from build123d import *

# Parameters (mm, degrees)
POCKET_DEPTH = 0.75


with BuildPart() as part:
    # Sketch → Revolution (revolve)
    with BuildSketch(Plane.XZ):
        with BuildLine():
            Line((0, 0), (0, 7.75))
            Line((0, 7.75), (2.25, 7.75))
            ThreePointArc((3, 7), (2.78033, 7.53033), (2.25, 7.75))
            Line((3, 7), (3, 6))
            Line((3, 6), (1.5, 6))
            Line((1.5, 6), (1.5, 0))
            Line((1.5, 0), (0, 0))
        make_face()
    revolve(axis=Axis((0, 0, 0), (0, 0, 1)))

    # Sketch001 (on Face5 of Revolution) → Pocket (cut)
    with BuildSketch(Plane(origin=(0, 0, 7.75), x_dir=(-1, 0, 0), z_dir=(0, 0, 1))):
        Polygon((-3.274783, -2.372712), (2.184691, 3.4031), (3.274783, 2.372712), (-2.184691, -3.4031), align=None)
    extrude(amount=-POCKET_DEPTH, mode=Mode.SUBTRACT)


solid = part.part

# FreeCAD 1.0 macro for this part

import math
import FreeCAD as App
import Part
import Sketcher
Q = App.Units.Quantity


def add_polygon(sketch, points):
    """Adds a closed chain of lines whose ends are joined by coincident constraints."""
    first, n = sketch.GeometryCount, len(points)
    for a, b in zip(points, points[1:] + points[:1]):
        sketch.addGeometry(Part.LineSegment(App.Vector(*a, 0), App.Vector(*b, 0)), False)
    for i in range(n):
        sketch.addConstraint(Sketcher.Constraint("Coincident", first + i, 2, first + (i + 1) % n, 1))

doc = App.newDocument("Part")
params = doc.addObject("Spreadsheet::Sheet", "Params")
for row, (alias, value) in enumerate([
    ("sketch1_height", "6 mm"),
    ("sketch1_height2", "1 mm"),
    ("sketch1_radius", "0.75 mm"),
    ("sketch1_width", "1.5 mm"),
    ("revolution_angle", "360 deg"),
    ("sketch2_length", "1.5 mm"),
    ("pocket1_length", "0.75 mm"),
], start=1):
    params.set(f"A{row}", alias)
    params.set(f"B{row}", "=" + value)
    params.setAlias(f"B{row}", alias)

body = doc.addObject("PartDesign::Body", "Body")

sketch1 = doc.addObject("Sketcher::SketchObject", "Sketch")
body.addObject(sketch1)
sketch1.AttachmentSupport = (doc.XZ_Plane, [""])
sketch1.MapMode = "FlatFace"
sketch1.addGeometry(Part.LineSegment(App.Vector(0, 7.8, 0), App.Vector(0, 0, 0)), False)
sketch1.addGeometry(Part.LineSegment(App.Vector(0, 0, 0), App.Vector(1.5, 0, 0)), False)
sketch1.addGeometry(Part.LineSegment(App.Vector(1.5, 0, 0), App.Vector(1.5, 6, 0)), False)
sketch1.addGeometry(Part.LineSegment(App.Vector(1.5, 6, 0), App.Vector(3, 6, 0)), False)
sketch1.addGeometry(Part.LineSegment(App.Vector(3, 6, 0), App.Vector(3, 7, 0)), False)
sketch1.addGeometry(Part.ArcOfCircle(Part.Circle(App.Vector(2.2, 7, 0), App.Vector(0, 0, 1), 0.8), math.radians(0), math.radians(90)), False)
sketch1.addGeometry(Part.LineSegment(App.Vector(2.2, 7.8, 0), App.Vector(0, 7.8, 0)), False)
sketch1.addConstraint(Sketcher.Constraint("Coincident", 0, 2, 1, 1))
sketch1.addConstraint(Sketcher.Constraint("Coincident", 1, 2, 2, 1))
sketch1.addConstraint(Sketcher.Constraint("Coincident", 2, 2, 3, 1))
sketch1.addConstraint(Sketcher.Constraint("Coincident", 3, 2, 4, 1))
sketch1.addConstraint(Sketcher.Constraint("Tangent", 4, 2, 5, 1))
sketch1.addConstraint(Sketcher.Constraint("Tangent", 5, 2, 6, 1))
sketch1.addConstraint(Sketcher.Constraint("Coincident", 6, 2, 0, 1))
sketch1.addConstraint(Sketcher.Constraint("Vertical", 0))
sketch1.addConstraint(Sketcher.Constraint("Horizontal", 1))
sketch1.addConstraint(Sketcher.Constraint("Vertical", 2))
sketch1.addConstraint(Sketcher.Constraint("Horizontal", 3))
sketch1.addConstraint(Sketcher.Constraint("Vertical", 4))
sketch1.addConstraint(Sketcher.Constraint("Horizontal", 6))
sketch1.addConstraint(Sketcher.Constraint("Coincident", 0, 2, -1, 1))
sketch1.addConstraint(Sketcher.Constraint("Equal", 1, 3))
sketch1.addConstraint(Sketcher.Constraint("DistanceY", 2, 1, 2, 2, Q("6 mm")))
sketch1.addConstraint(Sketcher.Constraint("DistanceY", 4, 1, 4, 2, Q("1 mm")))
sketch1.addConstraint(Sketcher.Constraint("Radius", 5, Q("0.75 mm")))
sketch1.addConstraint(Sketcher.Constraint("DistanceX", 1, 1, 1, 2, Q("1.5 mm")))
sketch1.setExpression("Constraints[15]", "Params.sketch1_height")
sketch1.setExpression("Constraints[16]", "Params.sketch1_height2")
sketch1.setExpression("Constraints[17]", "Params.sketch1_radius")
sketch1.setExpression("Constraints[18]", "Params.sketch1_width")
revolution = doc.addObject("PartDesign::Revolution", "Revolution")
body.addObject(revolution)
revolution.Profile = sketch1
revolution.ReferenceAxis = (sketch1, ["V_Axis"])
revolution.setExpression("Angle", "Params.revolution_angle")

sketch2 = doc.addObject("Sketcher::SketchObject", "Sketch001")
body.addObject(sketch2)
sketch2.AttachmentSupport = (doc.XY_Plane, [""])
sketch2.MapMode = "FlatFace"
sketch2.AttachmentOffset = App.Placement(App.Vector(0, 0, 7.75), App.Rotation())
add_polygon(sketch2, [(-2.2, -3.4), (3.3, 2.4), (2.2, 3.4), (-3.3, -2.4)])
sketch2.addConstraint(Sketcher.Constraint("Symmetric", 0, 2, 2, 2, -1, 1))
sketch2.addConstraint(Sketcher.Constraint("Symmetric", 1, 2, 3, 2, -1, 1))
sketch2.addConstraint(Sketcher.Constraint("Perpendicular", 0, 1))
sketch2.addConstraint(Sketcher.Constraint("Distance", 1, Q("1.5 mm")))
sketch2.addConstraint(Sketcher.Constraint("DistanceY", -1, 1, 1, 2, Q("3.4031 mm")))
sketch2.addConstraint(Sketcher.Constraint("DistanceY", -1, 1, 0, 2, Q("2.372712 mm")))
sketch2.setExpression("Constraints[7]", "Params.sketch2_length")
pocket1 = doc.addObject("PartDesign::Pocket", "Pocket")
body.addObject(pocket1)
pocket1.Profile = sketch2
pocket1.setExpression("Length", "Params.pocket1_length")

doc.recompute()
